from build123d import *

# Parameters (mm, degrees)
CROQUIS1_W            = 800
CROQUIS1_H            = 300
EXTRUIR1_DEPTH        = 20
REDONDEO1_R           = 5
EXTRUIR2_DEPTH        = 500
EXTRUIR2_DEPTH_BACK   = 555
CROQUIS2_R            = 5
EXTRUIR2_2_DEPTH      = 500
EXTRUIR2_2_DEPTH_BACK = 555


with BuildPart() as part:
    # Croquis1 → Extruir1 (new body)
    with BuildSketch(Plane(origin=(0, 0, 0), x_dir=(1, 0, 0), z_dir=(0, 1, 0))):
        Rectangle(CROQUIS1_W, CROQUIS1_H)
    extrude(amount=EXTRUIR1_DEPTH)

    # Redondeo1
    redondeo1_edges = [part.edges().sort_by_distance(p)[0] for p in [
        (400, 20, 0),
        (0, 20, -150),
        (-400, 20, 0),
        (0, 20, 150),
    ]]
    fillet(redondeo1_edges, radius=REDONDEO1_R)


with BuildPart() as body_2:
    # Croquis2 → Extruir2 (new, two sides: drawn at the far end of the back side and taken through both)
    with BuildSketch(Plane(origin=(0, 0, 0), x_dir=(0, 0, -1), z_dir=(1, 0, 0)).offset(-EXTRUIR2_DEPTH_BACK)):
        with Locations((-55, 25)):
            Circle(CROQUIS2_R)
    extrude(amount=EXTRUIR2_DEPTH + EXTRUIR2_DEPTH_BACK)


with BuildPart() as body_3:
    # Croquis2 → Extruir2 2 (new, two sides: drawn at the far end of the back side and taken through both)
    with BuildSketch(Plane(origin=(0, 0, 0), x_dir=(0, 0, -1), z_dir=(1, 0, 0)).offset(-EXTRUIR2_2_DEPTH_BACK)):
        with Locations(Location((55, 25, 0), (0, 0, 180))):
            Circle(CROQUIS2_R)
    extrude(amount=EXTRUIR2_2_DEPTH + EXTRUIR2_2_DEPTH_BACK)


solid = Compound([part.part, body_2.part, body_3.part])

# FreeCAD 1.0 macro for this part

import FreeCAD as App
import Part
import Sketcher

V = App.Vector
Q = App.Units.Quantity


def edges_at(feature, points):
    """Names of the edges that pass closest to the given points."""
    edges = feature.Shape.Edges
    near = lambda p: min(range(len(edges)), key=lambda i: edges[i].distToShape(Part.Vertex(*p))[0])
    return sorted({f"Edge{near(p) + 1}" for p in points})

doc = App.newDocument("Part")
body = doc.addObject("PartDesign::Body", "Body")

sketch1 = doc.addObject("Sketcher::SketchObject", "Sketch")
body.addObject(sketch1)
sketch1.AttachmentSupport = (doc.XZ_Plane, [""])
sketch1.MapMode = "FlatFace"
sketch1.addGeometry([
    Part.LineSegment(V(-400, -150, 0), V(-400, 150, 0)),
    Part.LineSegment(V(-400, 150, 0), V(400, 150, 0)),
    Part.LineSegment(V(400, 150, 0), V(400, -150, 0)),
    Part.LineSegment(V(400, -150, 0), V(-400, -150, 0)),
], False)
sketch1.addConstraint([
    Sketcher.Constraint("Coincident", 0, 2, 1, 1),
    Sketcher.Constraint("Coincident", 1, 2, 2, 1),
    Sketcher.Constraint("Coincident", 2, 2, 3, 1),
    Sketcher.Constraint("Coincident", 3, 2, 0, 1),
    Sketcher.Constraint("Vertical", 0),
    Sketcher.Constraint("Horizontal", 1),
    Sketcher.Constraint("Vertical", 2),
    Sketcher.Constraint("Horizontal", 3),
    Sketcher.Constraint("Symmetric", 0, 2, 2, 2, -1, 1),
    Sketcher.Constraint("DistanceX", 1, 1, 1, 2, Q("800 mm")),
    Sketcher.Constraint("DistanceY", 0, 1, 0, 2, Q("300 mm")),
])
pad1 = doc.addObject("PartDesign::Pad", "Pad")
body.addObject(pad1)
pad1.Profile = sketch1
pad1.Length = 20
pad1.Reversed = True
doc.recompute()

fillet = doc.addObject("PartDesign::Fillet", "Fillet")
body.addObject(fillet)
fillet.Base = (pad1, edges_at(pad1, [
    (400, 20, 0),
    (0, 20, -150),
    (-400, 20, 0),
    (0, 20, 150),
]))
fillet.Radius = 5
body2 = doc.addObject("PartDesign::Body", "Body001")

sketch2 = doc.addObject("Sketcher::SketchObject", "Sketch001")
body2.addObject(sketch2)
sketch2.AttachmentSupport = (doc.getObject("YZ_Plane001"), [""])
sketch2.MapMode = "FlatFace"
sketch2.addGeometry(Part.Circle(V(25, 55, 0), V(0, 0, 1), 5), False)
sketch2.addConstraint([
    Sketcher.Constraint("Diameter", 0, Q("10 mm")),
    Sketcher.Constraint("DistanceX", -1, 1, 0, 3, Q("25 mm")),
    Sketcher.Constraint("DistanceY", -1, 1, 0, 3, Q("55 mm")),
])
pad2 = doc.addObject("PartDesign::Pad", "Pad001")
body2.addObject(pad2)
pad2.Profile = sketch2
pad2.Type = "TwoLengths"
pad2.Length = 500
pad2.Length2 = 555
body3 = doc.addObject("PartDesign::Body", "Body002")

sketch3 = doc.addObject("Sketcher::SketchObject", "Sketch002")
body3.addObject(sketch3)
sketch3.AttachmentSupport = (doc.getObject("YZ_Plane002"), [""])
sketch3.MapMode = "FlatFace"
sketch3.addGeometry(Part.Circle(V(25, -55, 0), V(0, 0, 1), 5), False)
sketch3.addConstraint([
    Sketcher.Constraint("Diameter", 0, Q("10 mm")),
    Sketcher.Constraint("DistanceX", -1, 1, 0, 3, Q("25 mm")),
    Sketcher.Constraint("DistanceY", 0, 3, -1, 1, Q("55 mm")),
])
pad3 = doc.addObject("PartDesign::Pad", "Pad002")
body3.addObject(pad3)
pad3.Profile = sketch3
pad3.Type = "TwoLengths"
pad3.Length = 500
pad3.Length2 = 555

doc.recompute()
